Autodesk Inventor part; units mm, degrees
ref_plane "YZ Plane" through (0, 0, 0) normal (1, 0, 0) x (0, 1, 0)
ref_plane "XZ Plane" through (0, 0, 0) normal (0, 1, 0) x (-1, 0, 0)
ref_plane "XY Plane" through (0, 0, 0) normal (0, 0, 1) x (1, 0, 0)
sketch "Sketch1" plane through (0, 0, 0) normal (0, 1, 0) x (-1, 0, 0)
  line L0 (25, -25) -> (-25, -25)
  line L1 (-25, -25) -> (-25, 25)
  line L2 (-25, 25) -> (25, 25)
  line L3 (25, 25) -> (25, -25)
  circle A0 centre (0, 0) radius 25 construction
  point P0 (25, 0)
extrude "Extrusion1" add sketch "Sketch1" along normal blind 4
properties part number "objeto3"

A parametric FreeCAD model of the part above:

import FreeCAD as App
import Part
import Sketcher
from FreeCAD import Vector
Q = App.Units.Quantity


def add_polygon(sketch, points):
    """Adds a closed chain of lines whose ends are joined by coincident constraints."""
    first, n = sketch.GeometryCount, len(points)
    for a, b in zip(points, points[1:] + points[:1]):
        sketch.addGeometry(Part.LineSegment(App.Vector(*a, 0), App.Vector(*b, 0)), False)
    for i in range(n):
        sketch.addConstraint(Sketcher.Constraint("Coincident", first + i, 2, first + (i + 1) % n, 1))

doc = App.newDocument("Part")
body = doc.addObject("PartDesign::Body", "Body")

sketch1 = body.newObject("Sketcher::SketchObject", "Sketch")
sketch1.AttachmentSupport = (doc.getObject("XZ_Plane"), [""])
sketch1.MapMode = "FlatFace"
add_polygon(sketch1, [(25, -25), (-25, -25), (-25, 25), (25, 25)])
sketch1.addConstraint(Sketcher.Constraint("Horizontal", 0))
sketch1.addConstraint(Sketcher.Constraint("Vertical", 1))
sketch1.addConstraint(Sketcher.Constraint("Horizontal", 2))
sketch1.addConstraint(Sketcher.Constraint("Vertical", 3))
sketch1.addConstraint(Sketcher.Constraint("Symmetric", 0, 2, 2, 2, -1, 1))
sketch1.addConstraint(Sketcher.Constraint("Equal", 2, 1))
sketch1.addConstraint(Sketcher.Constraint("DistanceX", 0, 2, 0, 1, Q("50 mm")))
pad1 = body.newObject("PartDesign::Pad", "Pad")
pad1.Profile = sketch1
pad1.Length = 4
pad1.Reversed = True

doc.recompute()
